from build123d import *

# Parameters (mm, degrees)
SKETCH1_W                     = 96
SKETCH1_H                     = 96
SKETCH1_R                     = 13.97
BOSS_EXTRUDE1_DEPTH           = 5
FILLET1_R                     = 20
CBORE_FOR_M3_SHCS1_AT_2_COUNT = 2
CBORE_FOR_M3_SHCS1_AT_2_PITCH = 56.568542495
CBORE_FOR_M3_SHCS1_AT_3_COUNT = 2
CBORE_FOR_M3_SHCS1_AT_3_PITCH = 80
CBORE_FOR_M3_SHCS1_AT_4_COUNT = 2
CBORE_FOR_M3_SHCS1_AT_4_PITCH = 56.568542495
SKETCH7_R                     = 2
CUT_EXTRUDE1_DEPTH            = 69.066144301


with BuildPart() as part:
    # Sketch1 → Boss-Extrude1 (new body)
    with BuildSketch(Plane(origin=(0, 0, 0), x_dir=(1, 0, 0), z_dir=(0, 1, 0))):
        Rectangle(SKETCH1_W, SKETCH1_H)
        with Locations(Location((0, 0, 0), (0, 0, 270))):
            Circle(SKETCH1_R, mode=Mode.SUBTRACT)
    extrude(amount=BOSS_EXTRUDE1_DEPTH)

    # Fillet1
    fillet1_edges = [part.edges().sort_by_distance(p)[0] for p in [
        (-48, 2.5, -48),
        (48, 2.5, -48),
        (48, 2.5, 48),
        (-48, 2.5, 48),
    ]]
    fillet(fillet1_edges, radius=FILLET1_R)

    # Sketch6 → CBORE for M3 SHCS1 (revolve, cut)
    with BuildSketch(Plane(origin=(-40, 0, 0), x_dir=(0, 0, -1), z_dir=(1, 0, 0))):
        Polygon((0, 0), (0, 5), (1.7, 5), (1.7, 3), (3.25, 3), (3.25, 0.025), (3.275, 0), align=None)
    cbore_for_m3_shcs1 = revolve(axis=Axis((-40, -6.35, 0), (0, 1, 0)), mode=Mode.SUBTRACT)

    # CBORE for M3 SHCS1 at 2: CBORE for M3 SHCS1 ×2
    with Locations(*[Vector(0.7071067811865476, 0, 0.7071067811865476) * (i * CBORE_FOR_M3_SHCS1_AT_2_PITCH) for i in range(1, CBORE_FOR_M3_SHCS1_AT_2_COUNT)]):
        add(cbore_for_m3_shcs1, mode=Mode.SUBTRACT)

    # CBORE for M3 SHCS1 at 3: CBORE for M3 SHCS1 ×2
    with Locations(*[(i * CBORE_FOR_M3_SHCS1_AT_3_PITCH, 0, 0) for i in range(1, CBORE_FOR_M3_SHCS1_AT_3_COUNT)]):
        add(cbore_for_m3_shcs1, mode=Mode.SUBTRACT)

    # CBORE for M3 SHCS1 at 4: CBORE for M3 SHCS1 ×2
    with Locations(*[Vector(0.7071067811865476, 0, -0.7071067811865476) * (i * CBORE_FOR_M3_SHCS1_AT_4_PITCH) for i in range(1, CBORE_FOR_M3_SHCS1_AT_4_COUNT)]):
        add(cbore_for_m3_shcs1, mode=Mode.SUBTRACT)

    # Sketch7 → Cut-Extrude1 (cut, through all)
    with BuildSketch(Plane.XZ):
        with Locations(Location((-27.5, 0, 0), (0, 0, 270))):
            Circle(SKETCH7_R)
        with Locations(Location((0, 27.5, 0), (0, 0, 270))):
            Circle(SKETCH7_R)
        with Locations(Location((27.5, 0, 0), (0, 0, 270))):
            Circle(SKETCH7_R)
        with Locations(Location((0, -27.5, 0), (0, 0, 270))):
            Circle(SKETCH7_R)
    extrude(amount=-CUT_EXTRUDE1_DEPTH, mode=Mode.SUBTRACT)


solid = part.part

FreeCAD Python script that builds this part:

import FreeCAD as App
import Part
import Sketcher
Q = App.Units.Quantity


def edges_at(feature, points):
    """Names of the edges that pass closest to the given points."""
    edges = feature.Shape.Edges
    near = lambda p: min(range(len(edges)), key=lambda i: edges[i].distToShape(Part.Vertex(*p))[0])
    return sorted({f"Edge{near(p) + 1}" for p in points})

doc = App.newDocument("Part")
params = doc.addObject("Spreadsheet::Sheet", "Params")
for row, (alias, value) in enumerate([
    ("sketch1_diameter", "27.94 mm"),
    ("sketch1_width", "96 mm"),
    ("pad1_length", "5 mm"),
    ("fillet_radius", "20 mm"),
    ("sketch2_width", "5 mm"),
    ("sketch2_width2", "2 mm"),
    ("sketch2_height", "1.7 mm"),
    ("sketch2_height2", "1.55 mm"),
    ("groove_angle", "360 deg"),
    ("linearpattern_pitch", "56.568542 mm"),
    ("linearpattern2_pitch", "80 mm"),
    ("linearpattern3_pitch", "56.568542 mm"),
    ("sketch3_diameter", "4 mm"),
], start=1):
    params.set(f"A{row}", alias)
    params.set(f"B{row}", "=" + value)
    params.setAlias(f"B{row}", alias)

body = doc.addObject("PartDesign::Body", "Body")

# Sketch on XZ plane
sketch1 = body.newObject("Sketcher::SketchObject", "Sketch")
sketch1.AttachmentSupport = (doc.getObject("XZ_Plane"), [""])
sketch1.MapMode = "FlatFace"
sketch1.addGeometry([
    Part.LineSegment(App.Vector(-48, -48, 0), App.Vector(-48, 48, 0)),  # 0
    Part.LineSegment(App.Vector(-48, 48, 0), App.Vector(48, 48, 0)),  # 1
    Part.LineSegment(App.Vector(48, 48, 0), App.Vector(48, -48, 0)),  # 2
    Part.LineSegment(App.Vector(48, -48, 0), App.Vector(-48, -48, 0)),  # 3
    Part.Circle(App.Vector(0, 0, 0), App.Vector(0, 0, 1), 14),  # 4
], False)
sketch1.addConstraint([
    Sketcher.Constraint("Coincident", 0, 2, 1, 1),
    Sketcher.Constraint("Coincident", 1, 2, 2, 1),
    Sketcher.Constraint("Coincident", 2, 2, 3, 1),
    Sketcher.Constraint("Coincident", 3, 2, 0, 1),
    Sketcher.Constraint("Vertical", 0),
    Sketcher.Constraint("Horizontal", 1),
    Sketcher.Constraint("Vertical", 2),
    Sketcher.Constraint("Horizontal", 3),
    Sketcher.Constraint("Coincident", 4, 3, -1, 1),
    Sketcher.Constraint("Symmetric", 0, 2, 2, 2, -1, 1),
    Sketcher.Constraint("Equal", 3, 0),
    Sketcher.Constraint("Diameter", 4, Q("27.94 mm")),
    Sketcher.Constraint("DistanceX", 1, 1, 1, 2, Q("96 mm")),
])
sketch1.setExpression("Constraints[11]", "Params.sketch1_diameter")
sketch1.setExpression("Constraints[12]", "Params.sketch1_width")
pad1 = body.newObject("PartDesign::Pad", "Pad")
pad1.Profile = sketch1
pad1.setExpression("Length", "Params.pad1_length")
pad1.Reversed = True
doc.recompute()

fillet = body.newObject("PartDesign::Fillet", "Fillet")
fillet.Base = (pad1, edges_at(pad1, [
    (-48, 2.5, -48),
    (48, 2.5, -48),
    (48, 2.5, 48),
    (-48, 2.5, 48),
]))
fillet.setExpression("Radius", "Params.fillet_radius")

# Sketch on YZ plane
sketch2 = body.newObject("Sketcher::SketchObject", "Sketch001")
sketch2.AttachmentSupport = (doc.getObject("YZ_Plane"), [""])
sketch2.MapMode = "FlatFace"
sketch2.AttachmentOffset = App.Placement(App.Vector(0, 0, -40), App.Rotation())
sketch2.addGeometry([
    Part.LineSegment(App.Vector(5, 0, 0), App.Vector(0, 0, 0)),  # 0
    Part.LineSegment(App.Vector(0, 0, 0), App.Vector(0, -3.275, 0)),  # 1
    Part.LineSegment(App.Vector(0, -3.275, 0), App.Vector(0.025, -3.25, 0)),  # 2
    Part.LineSegment(App.Vector(0.025, -3.25, 0), App.Vector(3, -3.25, 0)),  # 3
    Part.LineSegment(App.Vector(3, -3.25, 0), App.Vector(3, -1.7, 0)),  # 4
    Part.LineSegment(App.Vector(3, -1.7, 0), App.Vector(5, -1.7, 0)),  # 5
    Part.LineSegment(App.Vector(5, -1.7, 0), App.Vector(5, 0, 0)),  # 6
], False)
sketch2.addConstraint([
    Sketcher.Constraint("Coincident", 0, 2, 1, 1),
    Sketcher.Constraint("Coincident", 1, 2, 2, 1),
    Sketcher.Constraint("Coincident", 2, 2, 3, 1),
    Sketcher.Constraint("Coincident", 3, 2, 4, 1),
    Sketcher.Constraint("Coincident", 4, 2, 5, 1),
    Sketcher.Constraint("Coincident", 5, 2, 6, 1),
    Sketcher.Constraint("Coincident", 6, 2, 0, 1),
    Sketcher.Constraint("Horizontal", 0),
    Sketcher.Constraint("Vertical", 1),
    Sketcher.Constraint("Horizontal", 3),
    Sketcher.Constraint("Vertical", 4),
    Sketcher.Constraint("Horizontal", 5),
    Sketcher.Constraint("Vertical", 6),
    Sketcher.Constraint("Coincident", 0, 2, -1, 1),
    Sketcher.Constraint("DistanceX", 0, 2, 0, 1, Q("5 mm")),
    Sketcher.Constraint("DistanceX", 5, 1, 5, 2, Q("2 mm")),
    Sketcher.Constraint("Angle", 2, Q("45 deg")),
    Sketcher.Constraint("DistanceY", 6, 1, 6, 2, Q("1.7 mm")),
    Sketcher.Constraint("DistanceY", 4, 1, 4, 2, Q("1.55 mm")),
    Sketcher.Constraint("DistanceX", 3, 1, 3, 2, Q("2.975 mm")),
])
sketch2.setExpression("Constraints[14]", "Params.sketch2_width")
sketch2.setExpression("Constraints[15]", "Params.sketch2_width2")
sketch2.setExpression("Constraints[17]", "Params.sketch2_height")
sketch2.setExpression("Constraints[18]", "Params.sketch2_height2")
groove = body.newObject("PartDesign::Groove", "Groove")
groove.Profile = sketch2
groove.ReferenceAxis = (sketch2, ["H_Axis"])
groove.setExpression("Angle", "Params.groove_angle")
doc.recompute()

datumline = body.newObject("PartDesign::Line", "DatumLine")
datumline.Placement = App.Placement(App.Vector(0, 0, 0), App.Rotation(App.Vector(0, 0, 1), App.Vector(0.707106781, 0, 0.707106781)))
linearpattern = body.newObject("PartDesign::LinearPattern", "LinearPattern")
linearpattern.Originals = [groove]
linearpattern.Direction = (datumline, [""])
linearpattern.Mode = "offset"
linearpattern.setExpression("Offset", "Params.linearpattern_pitch")
linearpattern.Occurrences = 2
body.Tip = linearpattern
doc.recompute()

linearpattern2 = body.newObject("PartDesign::LinearPattern", "LinearPattern001")
linearpattern2.Originals = [groove]
linearpattern2.Direction = (doc.getObject("X_Axis"), [""])
linearpattern2.Mode = "offset"
linearpattern2.setExpression("Offset", "Params.linearpattern2_pitch")
linearpattern2.Occurrences = 2
body.Tip = linearpattern2
doc.recompute()

datumline2 = body.newObject("PartDesign::Line", "DatumLine001")
datumline2.Placement = App.Placement(App.Vector(0, 0, 0), App.Rotation(App.Vector(0, 0, 1), App.Vector(0.707106781, 0, -0.707106781)))
linearpattern3 = body.newObject("PartDesign::LinearPattern", "LinearPattern002")
linearpattern3.Originals = [groove]
linearpattern3.Direction = (datumline2, [""])
linearpattern3.Mode = "offset"
linearpattern3.setExpression("Offset", "Params.linearpattern3_pitch")
linearpattern3.Occurrences = 2
body.Tip = linearpattern3

# Sketch on XZ plane
sketch3 = body.newObject("Sketcher::SketchObject", "Sketch002")
sketch3.AttachmentSupport = (doc.getObject("XZ_Plane"), [""])
sketch3.MapMode = "FlatFace"
sketch3.addGeometry([
    Part.Circle(App.Vector(-27.5, 0, 0), App.Vector(0, 0, 1), 2),
    Part.Circle(App.Vector(0, 27.5, 0), App.Vector(0, 0, 1), 2),
    Part.Circle(App.Vector(27.5, 0, 0), App.Vector(0, 0, 1), 2),
    Part.Circle(App.Vector(0, -27.5, 0), App.Vector(0, 0, 1), 2),
], False)
sketch3.addConstraint([
    Sketcher.Constraint("Equal", 0, 1),
    Sketcher.Constraint("Equal", 1, 2),
    Sketcher.Constraint("Equal", 2, 3),
    Sketcher.Constraint("Symmetric", 0, 3, 2, 3, -1, 1),
    Sketcher.Constraint("Symmetric", 1, 3, 3, 3, -1, 1),
    Sketcher.Constraint("PointOnObject", 0, 3, -1),
    Sketcher.Constraint("PointOnObject", 1, 3, -2),
    Sketcher.Constraint("Diameter", 0, Q("4 mm")),
    Sketcher.Constraint("DistanceX", 0, 3, 2, 3, Q("55 mm")),
    Sketcher.Constraint("DistanceY", 3, 3, 1, 3, Q("55 mm")),
])
sketch3.setExpression("Constraints[7]", "Params.sketch3_diameter")
pocket1 = body.newObject("PartDesign::Pocket", "Pocket")
pocket1.Profile = sketch3
pocket1.Type = "ThroughAll"

doc.recompute()
